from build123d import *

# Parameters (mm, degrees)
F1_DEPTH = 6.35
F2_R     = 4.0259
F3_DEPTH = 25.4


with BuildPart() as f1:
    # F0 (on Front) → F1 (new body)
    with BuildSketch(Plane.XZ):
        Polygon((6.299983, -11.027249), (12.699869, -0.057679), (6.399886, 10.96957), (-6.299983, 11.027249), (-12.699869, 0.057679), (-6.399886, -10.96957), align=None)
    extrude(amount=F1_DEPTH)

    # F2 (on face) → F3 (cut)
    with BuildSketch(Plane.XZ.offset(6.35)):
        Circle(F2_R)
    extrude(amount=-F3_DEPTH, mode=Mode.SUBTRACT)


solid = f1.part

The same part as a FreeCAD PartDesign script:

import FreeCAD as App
import Part
import Sketcher
Q = App.Units.Quantity


def add_polygon(sketch, points):
    """Adds a closed chain of lines whose ends are joined by coincident constraints."""
    first, n = sketch.GeometryCount, len(points)
    for a, b in zip(points, points[1:] + points[:1]):
        sketch.addGeometry(Part.LineSegment(App.Vector(*a, 0), App.Vector(*b, 0)), False)
    for i in range(n):
        sketch.addConstraint(Sketcher.Constraint("Coincident", first + i, 2, first + (i + 1) % n, 1))

doc = App.newDocument("Part")
body = doc.addObject("PartDesign::Body", "Body")

# Sketch on XZ plane
sketch1 = body.newObject("Sketcher::SketchObject", "Sketch")
sketch1.AttachmentSupport = (doc.getObject("XZ_Plane"), [""])
sketch1.MapMode = "FlatFace"
add_polygon(sketch1, [(6, -11), (13, 0), (6, 11), (-6, 11), (-13, 0), (-6, -11)])  # lines 0-5
sketch1.addConstraint(Sketcher.Constraint("Symmetric", 0, 2, 3, 2, -1, 1))
sketch1.addConstraint(Sketcher.Constraint("Symmetric", 1, 2, 4, 2, -1, 1))
sketch1.addConstraint(Sketcher.Constraint("Symmetric", 2, 2, 5, 2, -1, 1))
sketch1.addConstraint(Sketcher.Constraint("Equal", 0, 1))
sketch1.addConstraint(Sketcher.Constraint("Equal", 1, 2))
sketch1.addConstraint(Sketcher.Constraint("Distance", 0, Q("0.5 in")))
sketch1.addConstraint(Sketcher.Constraint("DistanceX", -1, 1, 0, 2, 12.699869))
sketch1.addConstraint(Sketcher.Constraint("DistanceY", 0, 2, -1, 1, 0.057679))
sketch1.addConstraint(Sketcher.Constraint("DistanceY", -1, 1, 1, 2, 10.96957))
pad1 = body.newObject("PartDesign::Pad", "Pad")
pad1.Profile = sketch1
pad1.Length = Q("0.25 in")

# Sketch on XZ plane
sketch2 = body.newObject("Sketcher::SketchObject", "Sketch001")
sketch2.AttachmentSupport = (doc.getObject("XZ_Plane"), [""])
sketch2.MapMode = "FlatFace"
sketch2.AttachmentOffset = App.Placement(App.Vector(0, 0, 0.25 * 25.4), App.Rotation())
sketch2.addGeometry(Part.Circle(App.Vector(0, 0, 0), App.Vector(0, 0, 1), 4), False)
sketch2.addConstraint(Sketcher.Constraint("Coincident", 0, 3, -1, 1))
sketch2.addConstraint(Sketcher.Constraint("Diameter", 0, Q("0.317 in")))
pocket1 = body.newObject("PartDesign::Pocket", "Pocket")
pocket1.Profile = sketch2
pocket1.Length = Q("1 in")

doc.recompute()
